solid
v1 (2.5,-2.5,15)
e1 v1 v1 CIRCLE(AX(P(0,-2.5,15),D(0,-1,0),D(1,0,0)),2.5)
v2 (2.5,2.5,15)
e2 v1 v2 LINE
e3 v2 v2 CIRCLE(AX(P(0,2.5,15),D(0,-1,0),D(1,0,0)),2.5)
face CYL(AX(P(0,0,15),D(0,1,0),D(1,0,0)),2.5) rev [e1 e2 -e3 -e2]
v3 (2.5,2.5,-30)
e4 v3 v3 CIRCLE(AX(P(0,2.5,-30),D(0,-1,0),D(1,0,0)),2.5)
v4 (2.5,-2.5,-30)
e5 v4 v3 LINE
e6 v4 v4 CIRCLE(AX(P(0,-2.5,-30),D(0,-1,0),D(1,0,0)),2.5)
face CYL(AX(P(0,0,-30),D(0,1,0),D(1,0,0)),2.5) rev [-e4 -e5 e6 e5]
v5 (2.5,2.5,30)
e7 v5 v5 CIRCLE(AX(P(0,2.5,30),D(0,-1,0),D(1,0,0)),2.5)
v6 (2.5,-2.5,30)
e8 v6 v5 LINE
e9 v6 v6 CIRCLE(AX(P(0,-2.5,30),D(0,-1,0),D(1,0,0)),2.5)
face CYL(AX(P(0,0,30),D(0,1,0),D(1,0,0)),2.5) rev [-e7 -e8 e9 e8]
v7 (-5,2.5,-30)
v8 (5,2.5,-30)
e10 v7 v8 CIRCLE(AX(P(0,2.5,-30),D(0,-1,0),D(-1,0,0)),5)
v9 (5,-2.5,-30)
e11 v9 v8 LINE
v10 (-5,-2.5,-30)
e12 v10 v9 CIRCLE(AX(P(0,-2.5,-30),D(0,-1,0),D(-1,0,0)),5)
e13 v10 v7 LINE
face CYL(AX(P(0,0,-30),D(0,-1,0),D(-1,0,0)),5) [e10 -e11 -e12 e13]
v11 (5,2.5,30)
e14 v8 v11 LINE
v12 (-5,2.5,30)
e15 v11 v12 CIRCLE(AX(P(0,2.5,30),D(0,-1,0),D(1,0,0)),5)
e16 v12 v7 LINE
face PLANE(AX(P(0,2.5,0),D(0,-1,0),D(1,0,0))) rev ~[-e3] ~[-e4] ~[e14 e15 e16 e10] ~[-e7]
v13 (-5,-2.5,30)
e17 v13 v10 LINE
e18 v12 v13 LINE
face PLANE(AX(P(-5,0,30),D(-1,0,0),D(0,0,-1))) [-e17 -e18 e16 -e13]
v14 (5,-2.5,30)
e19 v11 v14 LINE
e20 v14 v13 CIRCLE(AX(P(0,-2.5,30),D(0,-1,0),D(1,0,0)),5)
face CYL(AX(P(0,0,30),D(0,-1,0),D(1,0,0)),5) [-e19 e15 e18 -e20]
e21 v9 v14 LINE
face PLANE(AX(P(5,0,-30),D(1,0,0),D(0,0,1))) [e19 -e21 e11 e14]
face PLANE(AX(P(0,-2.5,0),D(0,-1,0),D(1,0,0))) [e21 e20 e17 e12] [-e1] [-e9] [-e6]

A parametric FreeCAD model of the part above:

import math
import FreeCAD as App
import Part
import Sketcher

V = App.Vector
Q = App.Units.Quantity

doc = App.newDocument("Part")
body = doc.addObject("PartDesign::Body", "Body")

sketch1 = body.newObject("Sketcher::SketchObject", "Sketch")
sketch1.AttachmentSupport = (doc.getObject("XZ_Plane"), [""])
sketch1.MapMode = "FlatFace"
sketch1.addGeometry([
    Part.LineSegment(V(5, -30, 0), V(5, 30, 0)),
    Part.ArcOfCircle(Part.Circle(V(0, 30, 0), V(0, 0, 1), 5), math.radians(0), math.radians(180)),
    Part.LineSegment(V(-5, 30, 0), V(-5, -30, 0)),
    Part.ArcOfCircle(Part.Circle(V(0, -30, 0), V(0, 0, 1), 5), math.radians(180), math.radians(360)),
    Part.Circle(V(0, -30, 0), V(0, 0, 1), 2.5),
    Part.Circle(V(0, 15, 0), V(0, 0, 1), 2.5),
    Part.Circle(V(0, 30, 0), V(0, 0, 1), 2.5),
], False)
sketch1.addConstraint([
    Sketcher.Constraint("Tangent", 0, 2, 1, 1),
    Sketcher.Constraint("Tangent", 1, 2, 2, 1),
    Sketcher.Constraint("Tangent", 2, 2, 3, 1),
    Sketcher.Constraint("Tangent", 3, 2, 0, 1),
    Sketcher.Constraint("Vertical", 0),
    Sketcher.Constraint("Vertical", 2),
    Sketcher.Constraint("Coincident", 4, 3, 3, 3),
    Sketcher.Constraint("Coincident", 6, 3, 1, 3),
    Sketcher.Constraint("Equal", 4, 5),
    Sketcher.Constraint("Equal", 5, 6),
    Sketcher.Constraint("Symmetric", 1, 3, 3, 3, -1, 1),
    Sketcher.Constraint("PointOnObject", 5, 3, -2),
    Sketcher.Constraint("Diameter", 4, Q("5 mm")),
    Sketcher.Constraint("Radius", 1, Q("5 mm")),
    Sketcher.Constraint("DistanceY", 0, 1, 0, 2, Q("60 mm")),
    Sketcher.Constraint("DistanceY", -1, 1, 5, 3, Q("15 mm")),
])
pad1 = body.newObject("PartDesign::Pad", "Pad")
pad1.Profile = sketch1
pad1.Length = 5
pad1.Midplane = True

doc.recompute()
